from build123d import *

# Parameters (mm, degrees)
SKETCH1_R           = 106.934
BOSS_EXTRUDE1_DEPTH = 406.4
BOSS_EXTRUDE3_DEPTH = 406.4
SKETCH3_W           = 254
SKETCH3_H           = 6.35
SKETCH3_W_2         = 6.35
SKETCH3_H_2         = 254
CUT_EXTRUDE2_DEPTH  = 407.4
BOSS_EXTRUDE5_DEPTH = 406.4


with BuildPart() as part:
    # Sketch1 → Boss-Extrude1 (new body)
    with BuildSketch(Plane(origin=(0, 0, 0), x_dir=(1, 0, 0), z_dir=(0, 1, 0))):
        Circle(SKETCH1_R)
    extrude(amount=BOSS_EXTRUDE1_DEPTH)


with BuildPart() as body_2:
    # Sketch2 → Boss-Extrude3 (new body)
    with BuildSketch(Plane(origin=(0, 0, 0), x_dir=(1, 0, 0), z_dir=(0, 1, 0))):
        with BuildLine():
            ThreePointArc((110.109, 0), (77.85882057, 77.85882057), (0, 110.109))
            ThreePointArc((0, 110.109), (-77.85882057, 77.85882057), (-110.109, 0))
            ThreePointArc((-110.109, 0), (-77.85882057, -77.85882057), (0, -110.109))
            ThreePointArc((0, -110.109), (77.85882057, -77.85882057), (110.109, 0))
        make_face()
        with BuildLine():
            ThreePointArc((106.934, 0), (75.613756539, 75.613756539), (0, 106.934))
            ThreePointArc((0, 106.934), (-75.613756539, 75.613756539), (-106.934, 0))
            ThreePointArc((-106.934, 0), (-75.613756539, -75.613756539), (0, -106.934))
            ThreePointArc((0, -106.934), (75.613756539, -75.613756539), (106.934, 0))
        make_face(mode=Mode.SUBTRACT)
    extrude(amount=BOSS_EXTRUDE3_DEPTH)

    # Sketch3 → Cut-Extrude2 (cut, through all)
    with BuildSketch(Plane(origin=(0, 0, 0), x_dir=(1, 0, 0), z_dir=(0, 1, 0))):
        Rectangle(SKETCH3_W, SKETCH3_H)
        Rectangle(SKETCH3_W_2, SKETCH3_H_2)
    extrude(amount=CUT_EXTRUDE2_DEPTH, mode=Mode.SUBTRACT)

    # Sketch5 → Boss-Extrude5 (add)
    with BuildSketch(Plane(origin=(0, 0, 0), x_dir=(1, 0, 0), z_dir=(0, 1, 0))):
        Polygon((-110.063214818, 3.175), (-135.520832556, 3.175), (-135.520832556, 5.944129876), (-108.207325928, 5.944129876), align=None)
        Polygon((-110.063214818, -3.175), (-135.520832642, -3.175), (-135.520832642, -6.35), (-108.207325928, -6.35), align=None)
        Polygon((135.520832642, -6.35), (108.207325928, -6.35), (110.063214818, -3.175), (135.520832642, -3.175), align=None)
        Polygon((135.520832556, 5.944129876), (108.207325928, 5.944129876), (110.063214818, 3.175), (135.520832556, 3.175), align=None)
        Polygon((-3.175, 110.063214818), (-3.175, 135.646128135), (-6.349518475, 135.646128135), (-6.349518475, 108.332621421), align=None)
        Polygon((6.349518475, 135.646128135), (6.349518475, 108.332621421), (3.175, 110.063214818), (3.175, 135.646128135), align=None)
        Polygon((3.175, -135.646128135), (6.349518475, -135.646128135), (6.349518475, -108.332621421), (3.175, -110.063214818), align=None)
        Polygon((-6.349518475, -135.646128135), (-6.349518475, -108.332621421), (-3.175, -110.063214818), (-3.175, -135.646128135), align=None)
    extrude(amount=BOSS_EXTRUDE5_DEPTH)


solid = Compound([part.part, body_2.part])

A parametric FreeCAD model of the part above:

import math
import FreeCAD as App
import Part
import Sketcher

V = App.Vector
Q = App.Units.Quantity


def add_polygon(sketch, points):
    """Adds a closed chain of lines whose ends are joined by coincident constraints."""
    first, n = sketch.GeometryCount, len(points)
    for a, b in zip(points, points[1:] + points[:1]):
        sketch.addGeometry(Part.LineSegment(App.Vector(*a, 0), App.Vector(*b, 0)), False)
    for i in range(n):
        sketch.addConstraint(Sketcher.Constraint("Coincident", first + i, 2, first + (i + 1) % n, 1))

doc = App.newDocument("Part")
body = doc.addObject("PartDesign::Body", "Body")

# Sketch on XZ plane
sketch1 = body.newObject("Sketcher::SketchObject", "Sketch")
sketch1.AttachmentSupport = (doc.getObject("XZ_Plane"), [""])
sketch1.MapMode = "FlatFace"
sketch1.addGeometry(Part.Circle(V(0, 0, 0), V(0, 0, 1), 107), False)
sketch1.addConstraint(Sketcher.Constraint("Coincident", 0, 3, -1, 1))
sketch1.addConstraint(Sketcher.Constraint("Diameter", 0, Q("8.42 in")))
pad1 = body.newObject("PartDesign::Pad", "Pad")
pad1.Profile = sketch1
pad1.Length = Q("16 in")
pad1.Reversed = True
body2 = doc.addObject("PartDesign::Body", "Body001")
body2.AllowCompound = True

# Sketch on XZ plane
sketch2 = body2.newObject("Sketcher::SketchObject", "Sketch001")
sketch2.AttachmentSupport = (doc.getObject("XZ_Plane001"), [""])
sketch2.MapMode = "FlatFace"
sketch2.addGeometry(Part.ArcOfCircle(Part.Circle(V(0, 0, 0), V(0, 0, 1), 110), math.radians(-90), math.radians(0)), False)
sketch2.addGeometry(Part.ArcOfCircle(Part.Circle(V(0, 0, 0), V(0, 0, 1), 110), math.radians(180), math.radians(270)), False)
sketch2.addGeometry(Part.ArcOfCircle(Part.Circle(V(0, 0, 0), V(0, 0, 1), 110), math.radians(90), math.radians(180)), False)
sketch2.addGeometry(Part.ArcOfCircle(Part.Circle(V(0, 0, 0), V(0, 0, 1), 110), math.radians(0), math.radians(90)), False)
sketch2.addGeometry(Part.ArcOfCircle(Part.Circle(V(0, 0, 0), V(0, 0, 1), 107), math.radians(-90), math.radians(0)), False)
sketch2.addGeometry(Part.ArcOfCircle(Part.Circle(V(0, 0, 0), V(0, 0, 1), 107), math.radians(0), math.radians(90)), False)
sketch2.addGeometry(Part.ArcOfCircle(Part.Circle(V(0, 0, 0), V(0, 0, 1), 107), math.radians(90), math.radians(180)), False)
sketch2.addGeometry(Part.ArcOfCircle(Part.Circle(V(0, 0, 0), V(0, 0, 1), 107), math.radians(-180), math.radians(-90)), False)
sketch2.addConstraint(Sketcher.Constraint("Tangent", 0, 1, 1, 2))
sketch2.addConstraint(Sketcher.Constraint("Tangent", 1, 1, 2, 2))
sketch2.addConstraint(Sketcher.Constraint("Tangent", 2, 1, 3, 2))
sketch2.addConstraint(Sketcher.Constraint("Tangent", 3, 1, 0, 2))
sketch2.addConstraint(Sketcher.Constraint("Tangent", 4, 2, 5, 1))
sketch2.addConstraint(Sketcher.Constraint("Tangent", 5, 2, 6, 1))
sketch2.addConstraint(Sketcher.Constraint("Tangent", 6, 2, 7, 1))
sketch2.addConstraint(Sketcher.Constraint("Tangent", 7, 2, 4, 1))
sketch2.addConstraint(Sketcher.Constraint("Coincident", 0, 3, -1, 1))
sketch2.addConstraint(Sketcher.Constraint("Coincident", 4, 3, -1, 1))
sketch2.addConstraint(Sketcher.Constraint("Equal", 0, 1))
sketch2.addConstraint(Sketcher.Constraint("Equal", 4, 5))
sketch2.addConstraint(Sketcher.Constraint("PointOnObject", 0, 1, -2))
sketch2.addConstraint(Sketcher.Constraint("PointOnObject", 1, 1, -1))
sketch2.addConstraint(Sketcher.Constraint("PointOnObject", 2, 1, -2))
sketch2.addConstraint(Sketcher.Constraint("PointOnObject", 3, 1, -1))
sketch2.addConstraint(Sketcher.Constraint("PointOnObject", 4, 2, -1))
sketch2.addConstraint(Sketcher.Constraint("PointOnObject", 5, 2, -2))
sketch2.addConstraint(Sketcher.Constraint("PointOnObject", 6, 2, -1))
sketch2.addConstraint(Sketcher.Constraint("PointOnObject", 7, 2, -2))
sketch2.addConstraint(Sketcher.Constraint("Radius", 4, Q("4.21 in")))
sketch2.addConstraint(Sketcher.Constraint("Radius", 0, Q("4.335 in")))
pad2 = body2.newObject("PartDesign::Pad", "Pad001")
pad2.Profile = sketch2
pad2.Length = Q("16 in")
pad2.Reversed = True

# Sketch on XZ plane
sketch3 = body2.newObject("Sketcher::SketchObject", "Sketch002")
sketch3.AttachmentSupport = (doc.getObject("XZ_Plane001"), [""])
sketch3.MapMode = "FlatFace"
add_polygon(sketch3, [(-127, -3), (-127, 3), (-3, 3), (-3, 127), (3, 127), (3, 3), (127, 3), (127, -3), (3, -3), (3, -127), (-3, -127), (-3, -3)])  # lines 0-11
sketch3.addConstraint(Sketcher.Constraint("Vertical", 0))
sketch3.addConstraint(Sketcher.Constraint("Horizontal", 1))
sketch3.addConstraint(Sketcher.Constraint("Vertical", 2))
sketch3.addConstraint(Sketcher.Constraint("Horizontal", 3))
sketch3.addConstraint(Sketcher.Constraint("Vertical", 4))
sketch3.addConstraint(Sketcher.Constraint("Horizontal", 5))
sketch3.addConstraint(Sketcher.Constraint("Vertical", 6))
sketch3.addConstraint(Sketcher.Constraint("Horizontal", 7))
sketch3.addConstraint(Sketcher.Constraint("Vertical", 8))
sketch3.addConstraint(Sketcher.Constraint("Horizontal", 9))
sketch3.addConstraint(Sketcher.Constraint("Vertical", 10))
sketch3.addConstraint(Sketcher.Constraint("Horizontal", 11))
sketch3.addConstraint(Sketcher.Constraint("Symmetric", 0, 2, 6, 2, -1, 1))
sketch3.addConstraint(Sketcher.Constraint("Symmetric", 2, 2, 8, 2, -1, 1))
sketch3.addConstraint(Sketcher.Constraint("Symmetric", 4, 2, 10, 2, -1, 1))
sketch3.addConstraint(Sketcher.Constraint("Symmetric", 1, 2, 4, 2, -2))
sketch3.addConstraint(Sketcher.Constraint("Equal", 9, 0))
sketch3.addConstraint(Sketcher.Constraint("Equal", 11, 2))
sketch3.addConstraint(Sketcher.Constraint("DistanceX", 0, 2, -1, 1, Q("5 in")))
sketch3.addConstraint(Sketcher.Constraint("DistanceX", 3, 1, 3, 2, Q("0.25 in")))
pocket1 = body2.newObject("PartDesign::Pocket", "Pocket")
pocket1.Profile = sketch3
pocket1.Type = "ThroughAll"

# Sketch on XZ plane
sketch4 = body2.newObject("Sketcher::SketchObject", "Sketch003")
sketch4.AttachmentSupport = (doc.getObject("XZ_Plane001"), [""])
sketch4.MapMode = "FlatFace"
add_polygon(sketch4, [(-135.5, -3.2), (-110.1, -3.2), (-108.2, -5.9), (-135.5, -5.9)])  # lines 0-3
add_polygon(sketch4, [(-110.1, 3.2), (-135.5, 3.2), (-135.5, 6.3), (-108.2, 6.3)])  # lines 4-7
add_polygon(sketch4, [(108.2, 6.3), (135.5, 6.3), (135.5, 3.2), (110.1, 3.2)])  # lines 8-11
add_polygon(sketch4, [(135.5, -5.9), (108.2, -5.9), (110.1, -3.2), (135.5, -3.2)])  # lines 12-15
add_polygon(sketch4, [(-3.2, -110.1), (-3.2, -135.6), (-6.3, -135.6), (-6.3, -108.3)])  # lines 16-19
add_polygon(sketch4, [(6.3, -108.3), (6.3, -135.6), (3.2, -135.6), (3.2, -110.1)])  # lines 20-23
add_polygon(sketch4, [(3.2, 135.6), (6.3, 135.6), (6.3, 108.3), (3.2, 110.1)])  # lines 24-27
add_polygon(sketch4, [(-6.3, 108.3), (-6.3, 135.6), (-3.2, 135.6), (-3.2, 110.1)])  # lines 28-31
sketch4.addConstraint(Sketcher.Constraint("Horizontal", 0))
sketch4.addConstraint(Sketcher.Constraint("Horizontal", 2))
sketch4.addConstraint(Sketcher.Constraint("Vertical", 3))
sketch4.addConstraint(Sketcher.Constraint("Horizontal", 4))
sketch4.addConstraint(Sketcher.Constraint("Vertical", 5))
sketch4.addConstraint(Sketcher.Constraint("Horizontal", 6))
sketch4.addConstraint(Sketcher.Constraint("Horizontal", 8))
sketch4.addConstraint(Sketcher.Constraint("Vertical", 9))
sketch4.addConstraint(Sketcher.Constraint("Horizontal", 10))
sketch4.addConstraint(Sketcher.Constraint("Horizontal", 12))
sketch4.addConstraint(Sketcher.Constraint("Horizontal", 14))
sketch4.addConstraint(Sketcher.Constraint("Vertical", 15))
sketch4.addConstraint(Sketcher.Constraint("Vertical", 16))
sketch4.addConstraint(Sketcher.Constraint("Horizontal", 17))
sketch4.addConstraint(Sketcher.Constraint("Vertical", 18))
sketch4.addConstraint(Sketcher.Constraint("Vertical", 20))
sketch4.addConstraint(Sketcher.Constraint("Horizontal", 21))
sketch4.addConstraint(Sketcher.Constraint("Vertical", 22))
sketch4.addConstraint(Sketcher.Constraint("Horizontal", 24))
sketch4.addConstraint(Sketcher.Constraint("Vertical", 25))
sketch4.addConstraint(Sketcher.Constraint("Vertical", 27))
sketch4.addConstraint(Sketcher.Constraint("Vertical", 28))
sketch4.addConstraint(Sketcher.Constraint("Horizontal", 29))
sketch4.addConstraint(Sketcher.Constraint("Vertical", 30))
sketch4.addConstraint(Sketcher.Constraint("Symmetric", 3, 2, 9, 2, -1, 1))
sketch4.addConstraint(Sketcher.Constraint("Symmetric", 7, 2, 13, 2, -1, 1))
sketch4.addConstraint(Sketcher.Constraint("Symmetric", 17, 2, 24, 2, -1, 1))
sketch4.addConstraint(Sketcher.Constraint("Symmetric", 19, 2, 26, 2, -1, 1))
sketch4.addConstraint(Sketcher.Constraint("Symmetric", 20, 2, 28, 2, -1, 1))
sketch4.addConstraint(Sketcher.Constraint("Symmetric", 22, 2, 30, 2, -1, 1))
sketch4.addConstraint(Sketcher.Constraint("Symmetric", 5, 2, 8, 2, -2))
sketch4.addConstraint(Sketcher.Constraint("Symmetric", 7, 2, 10, 2, -2))
sketch4.addConstraint(Sketcher.Constraint("Symmetric", 1, 2, 12, 2, -2))
sketch4.addConstraint(Sketcher.Constraint("Symmetric", 17, 2, 20, 2, -2))
sketch4.addConstraint(Sketcher.Constraint("Symmetric", 19, 2, 22, 2, -2))
sketch4.addConstraint(Sketcher.Constraint("Parallel", 19, 26))
sketch4.addConstraint(Sketcher.Constraint("Parallel", 23, 31))
sketch4.addConstraint(Sketcher.Constraint("Horizontal", 18, 2, 23, 2))
sketch4.addConstraint(Sketcher.Constraint("Vertical", 1, 2, 6, 2))
sketch4.addConstraint(Sketcher.Constraint("Vertical", 0, 2, 7, 2))
sketch4.addConstraint(Sketcher.Constraint("Vertical", 11, 2, 12, 2))
sketch4.addConstraint(Sketcher.Constraint("Vertical", 9, 2, 14, 2))
sketch4.addConstraint(Sketcher.Constraint("Equal", 12, 18))
sketch4.addConstraint(Sketcher.Constraint("DistanceY", 5, 1, 5, 2, Q("0.125 in")))
sketch4.addConstraint(Sketcher.Constraint("DistanceY", -1, 1, 5, 2, Q("0.25 in")))
sketch4.addConstraint(Sketcher.Constraint("DistanceX", 16, 2, 21, 2, Q("0.25 in")))
sketch4.addConstraint(Sketcher.Constraint("DistanceX", 17, 2, 17, 1, 3.174518))
sketch4.addConstraint(Sketcher.Constraint("DistanceY", 3, 1, 3, 2, 2.76913))
sketch4.addConstraint(Sketcher.Constraint("DistanceY", 16, 2, 1, 2, 129.701998))
sketch4.addConstraint(Sketcher.Constraint("Distance", 7, 3.677628))
sketch4.addConstraint(Sketcher.Constraint("DistanceX", 0, 1, 0, 2, 25.457618))
sketch4.addConstraint(Sketcher.Constraint("DistanceY", 16, 2, 16, 1, 25.582913))
sketch4.addConstraint(Sketcher.Constraint("DistanceX", 6, 2, 8, 2, 243.728159))
pad3 = body2.newObject("PartDesign::Pad", "Pad002")
pad3.Profile = sketch4
pad3.Length = Q("16 in")
pad3.Reversed = True

doc.recompute()
